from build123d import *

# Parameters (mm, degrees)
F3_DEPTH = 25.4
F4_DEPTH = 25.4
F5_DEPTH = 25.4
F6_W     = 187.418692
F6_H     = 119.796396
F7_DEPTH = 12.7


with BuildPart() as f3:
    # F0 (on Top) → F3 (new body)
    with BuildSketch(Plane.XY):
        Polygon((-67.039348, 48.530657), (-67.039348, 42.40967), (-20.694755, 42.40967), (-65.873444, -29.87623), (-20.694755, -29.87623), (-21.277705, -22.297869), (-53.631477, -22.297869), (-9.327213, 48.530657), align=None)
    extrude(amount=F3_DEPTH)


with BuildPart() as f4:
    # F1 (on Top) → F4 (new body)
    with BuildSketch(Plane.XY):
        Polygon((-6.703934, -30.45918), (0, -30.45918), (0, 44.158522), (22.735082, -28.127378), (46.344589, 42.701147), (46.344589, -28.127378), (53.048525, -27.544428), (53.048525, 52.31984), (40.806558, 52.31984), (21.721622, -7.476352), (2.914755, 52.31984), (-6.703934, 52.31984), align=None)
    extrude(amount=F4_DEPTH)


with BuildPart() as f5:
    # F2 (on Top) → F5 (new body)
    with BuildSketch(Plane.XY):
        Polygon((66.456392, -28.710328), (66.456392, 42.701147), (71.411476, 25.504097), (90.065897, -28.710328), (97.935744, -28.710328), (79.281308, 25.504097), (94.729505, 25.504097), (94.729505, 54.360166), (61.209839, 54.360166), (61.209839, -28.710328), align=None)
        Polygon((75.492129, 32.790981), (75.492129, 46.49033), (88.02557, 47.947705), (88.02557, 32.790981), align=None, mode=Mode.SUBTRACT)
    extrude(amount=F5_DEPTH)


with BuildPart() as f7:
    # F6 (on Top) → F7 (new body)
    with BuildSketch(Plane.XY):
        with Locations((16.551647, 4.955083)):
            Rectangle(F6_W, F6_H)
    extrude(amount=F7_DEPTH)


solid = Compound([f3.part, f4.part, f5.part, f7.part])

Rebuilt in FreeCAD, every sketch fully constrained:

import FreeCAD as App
import Part
import Sketcher

V = App.Vector
Q = App.Units.Quantity

doc = App.newDocument("Part")
body = doc.addObject("PartDesign::Body", "Body")

sketch1 = doc.addObject("Sketcher::SketchObject", "Sketch")
body.addObject(sketch1)
sketch1.AttachmentSupport = (doc.XY_Plane, [""])
sketch1.MapMode = "FlatFace"
sketch1.addGeometry([
    Part.LineSegment(V(-67, 49, 0), V(-67, 42, 0)),
    Part.LineSegment(V(-67, 42, 0), V(-21, 42, 0)),
    Part.LineSegment(V(-21, 42, 0), V(-66, -30, 0)),
    Part.LineSegment(V(-66, -30, 0), V(-21, -30, 0)),
    Part.LineSegment(V(-21, -30, 0), V(-21, -22, 0)),
    Part.LineSegment(V(-21, -22, 0), V(-54, -22, 0)),
    Part.LineSegment(V(-54, -22, 0), V(-9, 49, 0)),
    Part.LineSegment(V(-9, 49, 0), V(-67, 49, 0)),
], False)
sketch1.addConstraint([
    Sketcher.Constraint("Coincident", 0, 2, 1, 1),
    Sketcher.Constraint("Coincident", 1, 2, 2, 1),
    Sketcher.Constraint("Coincident", 2, 2, 3, 1),
    Sketcher.Constraint("Coincident", 3, 2, 4, 1),
    Sketcher.Constraint("Coincident", 4, 2, 5, 1),
    Sketcher.Constraint("Coincident", 5, 2, 6, 1),
    Sketcher.Constraint("Coincident", 6, 2, 7, 1),
    Sketcher.Constraint("Coincident", 7, 2, 0, 1),
    Sketcher.Constraint("Vertical", 0),
    Sketcher.Constraint("Horizontal", 1),
    Sketcher.Constraint("Horizontal", 3),
    Sketcher.Constraint("Horizontal", 5),
    Sketcher.Constraint("Horizontal", 7),
    Sketcher.Constraint("Vertical", 1, 2, 3, 2),
    Sketcher.Constraint("DistanceX", 3, 1, 3, 2, 45.178689),
    Sketcher.Constraint("DistanceX", 5, 2, 5, 1, 32.353772),
    Sketcher.Constraint("DistanceY", 2, 2, 0, 2, 72.2859),
    Sketcher.Constraint("Distance", 4, 7.600749),
    Sketcher.Constraint("Distance", 6, 83.543689),
    Sketcher.Constraint("DistanceX", 1, 1, 1, 2, 46.344593),
    Sketcher.Constraint("DistanceX", 7, 2, 7, 1, 57.712135),
    Sketcher.Constraint("DistanceY", 0, 2, 0, 1, 6.120987),
    Sketcher.Constraint("DistanceX", 0, 2, -1, 1, 67.039348),
    Sketcher.Constraint("DistanceY", -1, 1, 0, 2, 42.40967),
])
pad1 = doc.addObject("PartDesign::Pad", "Pad")
body.addObject(pad1)
pad1.Profile = sketch1
pad1.Length = Q("1 in")
body2 = doc.addObject("PartDesign::Body", "Body001")

sketch2 = doc.addObject("Sketcher::SketchObject", "Sketch001")
body2.addObject(sketch2)
sketch2.AttachmentSupport = (doc.getObject("XY_Plane001"), [""])
sketch2.MapMode = "FlatFace"
sketch2.addGeometry([
    Part.LineSegment(V(-7, -30, 0), V(0, -30, 0)),
    Part.LineSegment(V(0, -30, 0), V(0, 44, 0)),
    Part.LineSegment(V(0, 44, 0), V(23, -28, 0)),
    Part.LineSegment(V(23, -28, 0), V(46, 43, 0)),
    Part.LineSegment(V(46, 43, 0), V(46, -28, 0)),
    Part.LineSegment(V(46, -28, 0), V(53, -28, 0)),
    Part.LineSegment(V(53, -28, 0), V(53, 52, 0)),
    Part.LineSegment(V(53, 52, 0), V(41, 52, 0)),
    Part.LineSegment(V(41, 52, 0), V(22, -7, 0)),
    Part.LineSegment(V(22, -7, 0), V(3, 52, 0)),
    Part.LineSegment(V(3, 52, 0), V(-7, 52, 0)),
    Part.LineSegment(V(-7, 52, 0), V(-7, -30, 0)),
], False)
sketch2.addConstraint([
    Sketcher.Constraint("Coincident", 0, 2, 1, 1),
    Sketcher.Constraint("Coincident", 1, 2, 2, 1),
    Sketcher.Constraint("Coincident", 2, 2, 3, 1),
    Sketcher.Constraint("Coincident", 3, 2, 4, 1),
    Sketcher.Constraint("Coincident", 4, 2, 5, 1),
    Sketcher.Constraint("Coincident", 5, 2, 6, 1),
    Sketcher.Constraint("Coincident", 6, 2, 7, 1),
    Sketcher.Constraint("Coincident", 7, 2, 8, 1),
    Sketcher.Constraint("Coincident", 8, 2, 9, 1),
    Sketcher.Constraint("Coincident", 9, 2, 10, 1),
    Sketcher.Constraint("Coincident", 10, 2, 11, 1),
    Sketcher.Constraint("Coincident", 11, 2, 0, 1),
    Sketcher.Constraint("Horizontal", 0),
    Sketcher.Constraint("Vertical", 1),
    Sketcher.Constraint("Vertical", 4),
    Sketcher.Constraint("Vertical", 6),
    Sketcher.Constraint("Horizontal", 7),
    Sketcher.Constraint("Horizontal", 10),
    Sketcher.Constraint("Vertical", 11),
    Sketcher.Constraint("PointOnObject", 0, 2, -2),
    Sketcher.Constraint("Parallel", 2, 9),
    Sketcher.Constraint("Horizontal", 2, 2, 4, 2),
    Sketcher.Constraint("Horizontal", 7, 2, 9, 2),
    Sketcher.Constraint("DistanceY", 1, 1, 1, 2, 74.617702),
    Sketcher.Constraint("DistanceX", 8, 2, 2, 2, Q("0.0399 in")),
    Sketcher.Constraint("DistanceX", 10, 2, 10, 1, 9.618689),
    Sketcher.Constraint("DistanceY", 11, 2, 11, 1, 82.77902),
    Sketcher.Constraint("DistanceY", 0, 2, 2, 2, 2.331802),
    Sketcher.Constraint("DistanceY", 8, 2, 3, 2, 50.177499),
    Sketcher.Constraint("Distance", 2, 75.776878),
    Sketcher.Constraint("Distance", 3, 74.65982),
    Sketcher.Constraint("Distance", 8, 62.76798),
    Sketcher.Constraint("Distance", 9, 62.683992),
    Sketcher.Constraint("DistanceX", 7, 2, 7, 1, 12.241967),
    Sketcher.Constraint("DistanceY", 6, 1, 6, 2, 79.864268),
    Sketcher.Constraint("DistanceY", 0, 2, -1, 1, 30.45918),
])
pad2 = doc.addObject("PartDesign::Pad", "Pad001")
body2.addObject(pad2)
pad2.Profile = sketch2
pad2.Length = Q("1 in")
body3 = doc.addObject("PartDesign::Body", "Body002")

sketch3 = doc.addObject("Sketcher::SketchObject", "Sketch002")
body3.addObject(sketch3)
sketch3.AttachmentSupport = (doc.getObject("XY_Plane002"), [""])
sketch3.MapMode = "FlatFace"
sketch3.addGeometry([
    Part.LineSegment(V(66, -29, 0), V(66, 43, 0)),
    Part.LineSegment(V(66, 43, 0), V(71, 26, 0)),
    Part.LineSegment(V(71, 26, 0), V(90, -29, 0)),
    Part.LineSegment(V(90, -29, 0), V(98, -29, 0)),
    Part.LineSegment(V(98, -29, 0), V(79, 26, 0)),
    Part.LineSegment(V(79, 26, 0), V(95, 26, 0)),
    Part.LineSegment(V(95, 26, 0), V(95, 54, 0)),
    Part.LineSegment(V(95, 54, 0), V(61, 54, 0)),
    Part.LineSegment(V(61, 54, 0), V(61, -29, 0)),
    Part.LineSegment(V(61, -29, 0), V(66, -29, 0)),
    Part.LineSegment(V(88, 33, 0), V(75, 33, 0)),
    Part.LineSegment(V(75, 33, 0), V(75, 46, 0)),
    Part.LineSegment(V(75, 46, 0), V(88, 48, 0)),
    Part.LineSegment(V(88, 48, 0), V(88, 33, 0)),
], False)
sketch3.addConstraint([
    Sketcher.Constraint("Coincident", 0, 2, 1, 1),
    Sketcher.Constraint("Coincident", 1, 2, 2, 1),
    Sketcher.Constraint("Coincident", 2, 2, 3, 1),
    Sketcher.Constraint("Coincident", 3, 2, 4, 1),
    Sketcher.Constraint("Coincident", 4, 2, 5, 1),
    Sketcher.Constraint("Coincident", 5, 2, 6, 1),
    Sketcher.Constraint("Coincident", 6, 2, 7, 1),
    Sketcher.Constraint("Coincident", 7, 2, 8, 1),
    Sketcher.Constraint("Coincident", 8, 2, 9, 1),
    Sketcher.Constraint("Coincident", 9, 2, 0, 1),
    Sketcher.Constraint("Coincident", 10, 2, 11, 1),
    Sketcher.Constraint("Coincident", 11, 2, 12, 1),
    Sketcher.Constraint("Coincident", 12, 2, 13, 1),
    Sketcher.Constraint("Coincident", 13, 2, 10, 1),
    Sketcher.Constraint("Vertical", 0),
    Sketcher.Constraint("Horizontal", 3),
    Sketcher.Constraint("Horizontal", 5),
    Sketcher.Constraint("Vertical", 6),
    Sketcher.Constraint("Horizontal", 7),
    Sketcher.Constraint("Vertical", 8),
    Sketcher.Constraint("Horizontal", 9),
    Sketcher.Constraint("Horizontal", 10),
    Sketcher.Constraint("Vertical", 11),
    Sketcher.Constraint("Vertical", 13),
    Sketcher.Constraint("Parallel", 2, 4),
    Sketcher.Constraint("Horizontal", 1, 2, 4, 2),
    Sketcher.Constraint("Horizontal", 3, 2, 8, 2),
    Sketcher.Constraint("DistanceX", 10, 2, 10, 1, 12.533441),
    Sketcher.Constraint("DistanceY", 6, 1, 6, 2, 28.856069),
    Sketcher.Constraint("DistanceY", 11, 1, 11, 2, 13.699349),
    Sketcher.Constraint("DistanceX", 3, 1, 3, 2, 7.869847),
    Sketcher.Constraint("DistanceX", 5, 1, 5, 2, 15.448197),
    Sketcher.Constraint("DistanceX", 7, 2, 7, 1, 33.519666),
    Sketcher.Constraint("DistanceX", 9, 1, 9, 2, 5.246553),
    Sketcher.Constraint("DistanceY", 0, 1, 0, 2, 71.411475),
    Sketcher.Constraint("DistanceY", 8, 2, 8, 1, 83.070494),
    Sketcher.Constraint("DistanceY", 13, 2, 13, 1, 15.156724),
    Sketcher.Constraint("DistanceX", -1, 1, 0, 2, 66.456392),
    Sketcher.Constraint("DistanceY", 2, 2, -1, 1, 28.710328),
    Sketcher.Constraint("DistanceX", -1, 1, 10, 2, 75.492129),
    Sketcher.Constraint("DistanceY", -1, 1, 10, 2, 32.790981),
    Sketcher.Constraint("DistanceX", 1, 2, 2, 2, 18.654421),
])
pad3 = doc.addObject("PartDesign::Pad", "Pad002")
body3.addObject(pad3)
pad3.Profile = sketch3
pad3.Length = Q("1 in")
body4 = doc.addObject("PartDesign::Body", "Body003")

sketch4 = doc.addObject("Sketcher::SketchObject", "Sketch003")
body4.addObject(sketch4)
sketch4.AttachmentSupport = (doc.getObject("XY_Plane003"), [""])
sketch4.MapMode = "FlatFace"
sketch4.addGeometry([
    Part.LineSegment(V(-77, 65, 0), V(-77, -55, 0)),
    Part.LineSegment(V(-77, -55, 0), V(110, -55, 0)),
    Part.LineSegment(V(110, -55, 0), V(110, 65, 0)),
    Part.LineSegment(V(110, 65, 0), V(-77, 65, 0)),
], False)
sketch4.addConstraint([
    Sketcher.Constraint("Coincident", 0, 2, 1, 1),
    Sketcher.Constraint("Coincident", 1, 2, 2, 1),
    Sketcher.Constraint("Coincident", 2, 2, 3, 1),
    Sketcher.Constraint("Coincident", 3, 2, 0, 1),
    Sketcher.Constraint("Vertical", 0),
    Sketcher.Constraint("Horizontal", 1),
    Sketcher.Constraint("Vertical", 2),
    Sketcher.Constraint("Horizontal", 3),
    Sketcher.Constraint("DistanceX", 1, 1, 1, 2, 187.418692),
    Sketcher.Constraint("DistanceX", 0, 2, -1, 1, 77.157699),
    Sketcher.Constraint("DistanceY", 0, 2, 0, 1, 119.796396),
    Sketcher.Constraint("DistanceY", -1, 1, 2, 2, 64.853281),
])
pad4 = doc.addObject("PartDesign::Pad", "Pad003")
body4.addObject(pad4)
pad4.Profile = sketch4
pad4.Length = Q("0.5 in")

doc.recompute()
